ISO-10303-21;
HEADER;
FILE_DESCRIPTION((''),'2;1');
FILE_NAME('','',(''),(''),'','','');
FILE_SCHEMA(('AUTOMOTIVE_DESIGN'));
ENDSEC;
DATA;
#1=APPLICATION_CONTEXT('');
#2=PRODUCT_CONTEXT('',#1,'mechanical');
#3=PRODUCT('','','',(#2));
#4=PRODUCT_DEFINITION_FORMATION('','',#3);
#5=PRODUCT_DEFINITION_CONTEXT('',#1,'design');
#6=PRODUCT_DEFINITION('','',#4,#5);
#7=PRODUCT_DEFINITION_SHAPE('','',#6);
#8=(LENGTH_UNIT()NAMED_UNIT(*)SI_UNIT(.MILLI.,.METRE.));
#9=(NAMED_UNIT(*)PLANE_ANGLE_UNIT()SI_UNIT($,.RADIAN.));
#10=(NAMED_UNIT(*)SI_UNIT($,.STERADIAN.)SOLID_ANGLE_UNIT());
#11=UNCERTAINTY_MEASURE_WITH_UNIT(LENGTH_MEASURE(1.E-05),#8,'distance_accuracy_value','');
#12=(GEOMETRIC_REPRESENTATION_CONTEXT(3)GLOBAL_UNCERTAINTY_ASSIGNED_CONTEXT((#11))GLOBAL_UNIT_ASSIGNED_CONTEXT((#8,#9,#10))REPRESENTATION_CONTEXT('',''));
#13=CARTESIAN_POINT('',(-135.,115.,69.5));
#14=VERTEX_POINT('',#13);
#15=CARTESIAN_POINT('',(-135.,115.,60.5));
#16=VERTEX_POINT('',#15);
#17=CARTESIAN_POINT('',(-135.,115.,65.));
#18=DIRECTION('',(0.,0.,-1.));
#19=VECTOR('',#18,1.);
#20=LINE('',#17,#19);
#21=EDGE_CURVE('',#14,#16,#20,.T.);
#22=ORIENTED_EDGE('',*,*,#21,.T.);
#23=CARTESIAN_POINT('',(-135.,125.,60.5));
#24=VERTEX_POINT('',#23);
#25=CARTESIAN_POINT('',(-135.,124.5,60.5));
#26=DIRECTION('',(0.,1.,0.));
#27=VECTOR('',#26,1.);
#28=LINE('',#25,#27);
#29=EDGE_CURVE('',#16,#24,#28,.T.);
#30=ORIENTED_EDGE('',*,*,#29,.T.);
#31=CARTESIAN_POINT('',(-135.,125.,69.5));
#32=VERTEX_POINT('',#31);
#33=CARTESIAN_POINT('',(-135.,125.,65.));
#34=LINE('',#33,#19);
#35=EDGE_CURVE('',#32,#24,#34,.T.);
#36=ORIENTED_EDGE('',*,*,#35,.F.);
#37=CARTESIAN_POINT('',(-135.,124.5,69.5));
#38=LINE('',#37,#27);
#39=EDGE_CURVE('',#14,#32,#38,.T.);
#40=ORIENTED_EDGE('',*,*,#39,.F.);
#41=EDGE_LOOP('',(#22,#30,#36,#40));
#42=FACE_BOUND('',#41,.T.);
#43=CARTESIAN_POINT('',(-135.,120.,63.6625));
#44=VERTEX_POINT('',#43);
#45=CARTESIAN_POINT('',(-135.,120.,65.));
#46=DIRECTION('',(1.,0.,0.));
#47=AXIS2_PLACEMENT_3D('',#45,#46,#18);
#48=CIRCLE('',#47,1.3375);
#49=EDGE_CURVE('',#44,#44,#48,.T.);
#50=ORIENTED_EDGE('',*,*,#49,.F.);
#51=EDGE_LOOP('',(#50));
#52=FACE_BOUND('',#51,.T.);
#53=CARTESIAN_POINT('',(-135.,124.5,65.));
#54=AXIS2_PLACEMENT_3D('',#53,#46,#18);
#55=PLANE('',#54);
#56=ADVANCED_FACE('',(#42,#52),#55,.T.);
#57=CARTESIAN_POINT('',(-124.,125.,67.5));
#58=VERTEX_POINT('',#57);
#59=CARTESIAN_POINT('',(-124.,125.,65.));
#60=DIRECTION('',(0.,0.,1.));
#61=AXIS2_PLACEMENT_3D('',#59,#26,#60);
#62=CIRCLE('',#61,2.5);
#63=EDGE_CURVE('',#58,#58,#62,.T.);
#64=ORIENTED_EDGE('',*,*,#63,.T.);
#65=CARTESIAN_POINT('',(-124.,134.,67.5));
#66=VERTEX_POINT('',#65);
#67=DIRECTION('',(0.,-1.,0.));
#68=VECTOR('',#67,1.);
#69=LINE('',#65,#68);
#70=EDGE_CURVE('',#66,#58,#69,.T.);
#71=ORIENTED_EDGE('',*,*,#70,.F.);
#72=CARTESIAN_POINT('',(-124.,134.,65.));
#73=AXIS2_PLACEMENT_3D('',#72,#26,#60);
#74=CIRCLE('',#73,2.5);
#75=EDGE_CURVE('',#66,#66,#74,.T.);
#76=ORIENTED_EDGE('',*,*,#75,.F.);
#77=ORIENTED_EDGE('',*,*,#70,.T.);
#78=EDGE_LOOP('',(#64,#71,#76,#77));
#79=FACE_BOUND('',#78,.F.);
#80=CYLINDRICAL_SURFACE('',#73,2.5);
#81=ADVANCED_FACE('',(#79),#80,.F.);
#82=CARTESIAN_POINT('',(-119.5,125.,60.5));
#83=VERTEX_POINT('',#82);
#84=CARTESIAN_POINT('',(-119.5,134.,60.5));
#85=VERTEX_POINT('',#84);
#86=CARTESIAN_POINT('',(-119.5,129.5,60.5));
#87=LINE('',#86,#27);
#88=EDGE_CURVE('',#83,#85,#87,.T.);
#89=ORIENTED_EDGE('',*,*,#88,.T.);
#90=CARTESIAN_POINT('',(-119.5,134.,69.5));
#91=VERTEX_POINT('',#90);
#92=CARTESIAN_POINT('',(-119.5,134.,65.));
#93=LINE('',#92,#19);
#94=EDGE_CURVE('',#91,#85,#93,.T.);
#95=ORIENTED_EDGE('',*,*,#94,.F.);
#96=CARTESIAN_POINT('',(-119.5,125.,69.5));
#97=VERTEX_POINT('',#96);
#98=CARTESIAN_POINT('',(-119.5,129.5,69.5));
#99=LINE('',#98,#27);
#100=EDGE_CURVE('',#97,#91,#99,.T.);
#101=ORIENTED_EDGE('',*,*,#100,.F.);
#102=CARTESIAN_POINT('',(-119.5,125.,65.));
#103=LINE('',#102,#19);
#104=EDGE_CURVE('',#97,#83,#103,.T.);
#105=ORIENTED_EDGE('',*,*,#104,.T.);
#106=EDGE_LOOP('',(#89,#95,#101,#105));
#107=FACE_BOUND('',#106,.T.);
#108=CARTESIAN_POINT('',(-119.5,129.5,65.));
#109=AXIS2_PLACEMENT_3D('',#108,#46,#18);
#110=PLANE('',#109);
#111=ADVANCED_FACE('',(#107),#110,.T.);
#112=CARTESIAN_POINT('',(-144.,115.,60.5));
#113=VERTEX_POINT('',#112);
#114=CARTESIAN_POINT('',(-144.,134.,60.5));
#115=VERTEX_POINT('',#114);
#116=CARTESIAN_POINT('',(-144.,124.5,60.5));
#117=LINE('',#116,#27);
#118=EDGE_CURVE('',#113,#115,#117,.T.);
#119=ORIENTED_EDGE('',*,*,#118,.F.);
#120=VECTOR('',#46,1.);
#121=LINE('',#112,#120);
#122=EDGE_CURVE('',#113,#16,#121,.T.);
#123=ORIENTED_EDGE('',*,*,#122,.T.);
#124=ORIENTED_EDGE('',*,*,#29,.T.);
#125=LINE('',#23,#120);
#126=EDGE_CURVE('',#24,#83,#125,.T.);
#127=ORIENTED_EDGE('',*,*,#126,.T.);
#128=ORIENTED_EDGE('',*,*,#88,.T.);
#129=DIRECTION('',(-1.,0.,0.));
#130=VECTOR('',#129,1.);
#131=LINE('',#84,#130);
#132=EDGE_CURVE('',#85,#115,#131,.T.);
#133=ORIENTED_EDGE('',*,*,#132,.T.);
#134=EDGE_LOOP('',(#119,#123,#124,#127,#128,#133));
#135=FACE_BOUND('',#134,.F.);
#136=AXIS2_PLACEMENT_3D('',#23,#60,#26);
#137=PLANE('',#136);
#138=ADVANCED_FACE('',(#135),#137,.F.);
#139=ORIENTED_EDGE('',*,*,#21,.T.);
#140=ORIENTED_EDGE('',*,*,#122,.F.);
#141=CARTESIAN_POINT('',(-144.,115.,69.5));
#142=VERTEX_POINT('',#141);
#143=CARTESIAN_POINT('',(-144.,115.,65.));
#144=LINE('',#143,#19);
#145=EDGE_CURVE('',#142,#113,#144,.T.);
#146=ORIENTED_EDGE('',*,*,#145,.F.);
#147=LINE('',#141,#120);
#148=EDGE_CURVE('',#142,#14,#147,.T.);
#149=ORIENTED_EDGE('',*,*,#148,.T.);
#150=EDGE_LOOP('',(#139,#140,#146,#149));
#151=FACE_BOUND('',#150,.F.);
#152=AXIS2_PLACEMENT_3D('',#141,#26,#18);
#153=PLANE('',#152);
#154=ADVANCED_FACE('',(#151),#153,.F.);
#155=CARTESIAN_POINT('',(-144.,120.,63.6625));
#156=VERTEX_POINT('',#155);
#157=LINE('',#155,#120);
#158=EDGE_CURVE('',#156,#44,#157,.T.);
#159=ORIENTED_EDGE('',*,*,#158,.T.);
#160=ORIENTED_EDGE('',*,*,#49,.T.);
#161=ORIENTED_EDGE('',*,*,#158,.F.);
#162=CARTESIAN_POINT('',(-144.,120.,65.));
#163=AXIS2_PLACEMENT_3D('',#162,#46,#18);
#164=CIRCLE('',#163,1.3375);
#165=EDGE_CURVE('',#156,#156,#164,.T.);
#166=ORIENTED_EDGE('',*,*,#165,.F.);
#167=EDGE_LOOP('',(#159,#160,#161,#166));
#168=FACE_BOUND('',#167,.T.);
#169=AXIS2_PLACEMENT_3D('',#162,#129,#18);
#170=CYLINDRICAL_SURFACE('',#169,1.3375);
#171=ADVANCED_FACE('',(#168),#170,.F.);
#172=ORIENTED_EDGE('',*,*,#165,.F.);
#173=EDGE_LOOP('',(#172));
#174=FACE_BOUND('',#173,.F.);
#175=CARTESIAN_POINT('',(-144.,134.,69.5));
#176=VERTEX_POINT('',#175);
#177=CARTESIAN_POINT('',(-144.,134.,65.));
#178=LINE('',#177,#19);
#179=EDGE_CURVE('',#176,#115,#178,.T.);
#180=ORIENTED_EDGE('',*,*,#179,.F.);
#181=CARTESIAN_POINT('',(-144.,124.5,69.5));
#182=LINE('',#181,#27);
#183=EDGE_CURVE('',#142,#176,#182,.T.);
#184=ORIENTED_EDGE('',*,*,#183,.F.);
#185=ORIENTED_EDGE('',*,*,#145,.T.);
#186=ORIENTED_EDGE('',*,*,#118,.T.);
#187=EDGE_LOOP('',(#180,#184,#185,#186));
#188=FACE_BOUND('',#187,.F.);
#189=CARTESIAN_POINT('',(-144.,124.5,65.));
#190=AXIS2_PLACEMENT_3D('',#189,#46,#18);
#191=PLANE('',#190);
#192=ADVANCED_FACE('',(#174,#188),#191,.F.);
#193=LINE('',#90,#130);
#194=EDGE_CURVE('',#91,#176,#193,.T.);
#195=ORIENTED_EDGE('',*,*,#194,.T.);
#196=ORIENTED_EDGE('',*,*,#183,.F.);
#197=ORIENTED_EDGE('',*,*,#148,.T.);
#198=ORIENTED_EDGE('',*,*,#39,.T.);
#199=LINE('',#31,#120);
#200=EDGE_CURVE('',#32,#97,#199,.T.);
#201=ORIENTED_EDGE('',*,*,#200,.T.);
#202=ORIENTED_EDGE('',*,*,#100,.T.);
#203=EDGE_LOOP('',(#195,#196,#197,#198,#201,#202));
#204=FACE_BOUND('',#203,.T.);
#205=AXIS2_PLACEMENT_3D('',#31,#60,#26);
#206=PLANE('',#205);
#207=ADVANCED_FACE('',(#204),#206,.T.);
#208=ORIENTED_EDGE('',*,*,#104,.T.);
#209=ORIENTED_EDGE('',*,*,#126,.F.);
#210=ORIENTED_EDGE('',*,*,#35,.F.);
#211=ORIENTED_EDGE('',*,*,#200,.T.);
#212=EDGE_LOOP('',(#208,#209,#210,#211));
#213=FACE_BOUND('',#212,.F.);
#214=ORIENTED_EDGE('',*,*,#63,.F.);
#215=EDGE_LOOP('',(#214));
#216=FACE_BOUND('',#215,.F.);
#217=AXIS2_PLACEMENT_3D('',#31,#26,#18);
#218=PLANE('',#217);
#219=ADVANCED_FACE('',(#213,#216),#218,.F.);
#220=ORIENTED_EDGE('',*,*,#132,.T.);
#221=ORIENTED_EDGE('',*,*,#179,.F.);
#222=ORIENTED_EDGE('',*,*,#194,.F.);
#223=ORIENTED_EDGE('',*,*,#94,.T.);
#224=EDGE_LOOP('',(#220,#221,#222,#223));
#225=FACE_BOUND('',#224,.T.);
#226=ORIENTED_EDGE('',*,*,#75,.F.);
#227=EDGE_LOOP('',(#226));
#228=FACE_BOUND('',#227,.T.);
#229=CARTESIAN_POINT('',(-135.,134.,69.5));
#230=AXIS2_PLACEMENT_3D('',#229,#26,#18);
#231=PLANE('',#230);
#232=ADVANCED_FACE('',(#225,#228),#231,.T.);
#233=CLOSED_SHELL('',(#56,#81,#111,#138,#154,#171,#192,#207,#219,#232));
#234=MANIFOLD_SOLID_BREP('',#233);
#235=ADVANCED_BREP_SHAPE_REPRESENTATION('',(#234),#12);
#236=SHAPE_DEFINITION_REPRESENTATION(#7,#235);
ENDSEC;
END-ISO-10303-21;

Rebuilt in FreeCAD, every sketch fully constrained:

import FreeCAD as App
import Part
import Sketcher

doc = App.newDocument("Part")
body = doc.addObject("PartDesign::Body", "Body")

# Sketch on XY plane
sketch1 = body.newObject("Sketcher::SketchObject", "Sketch")
sketch1.AttachmentSupport = (doc.getObject("XY_Plane"), [""])
sketch1.MapMode = "FlatFace"
sketch1.addGeometry(Part.LineSegment(App.Vector(0, 19, 0), App.Vector(0, 0, 0)), False)
sketch1.addGeometry(Part.LineSegment(App.Vector(0, 0, 0), App.Vector(9, 0, 0)), False)
sketch1.addGeometry(Part.LineSegment(App.Vector(9, 0, 0), App.Vector(9, 19, 0)), False)
sketch1.addGeometry(Part.LineSegment(App.Vector(9, 19, 0), App.Vector(0, 19, 0)), False)
sketch1.addGeometry(Part.Circle(App.Vector(4.5, 5, 0), App.Vector(0, 0, 1), 1.3), False)
sketch1.addConstraint(Sketcher.Constraint("Coincident", 0, 2, 1, 1))
sketch1.addConstraint(Sketcher.Constraint("Coincident", 1, 2, 2, 1))
sketch1.addConstraint(Sketcher.Constraint("Coincident", 2, 2, 3, 1))
sketch1.addConstraint(Sketcher.Constraint("Coincident", 3, 2, 0, 1))
sketch1.addConstraint(Sketcher.Constraint("Vertical", 0))
sketch1.addConstraint(Sketcher.Constraint("Horizontal", 1))
sketch1.addConstraint(Sketcher.Constraint("Vertical", 2))
sketch1.addConstraint(Sketcher.Constraint("Horizontal", 3))
sketch1.addConstraint(Sketcher.Constraint("Coincident", 0, 2, -1, 1))
sketch1.addConstraint(Sketcher.Constraint("DistanceX", 1, 1, 1, 2, 9.0))
sketch1.addConstraint(Sketcher.Constraint("DistanceY", 0, 2, 0, 1, 19.0))
sketch1.addConstraint(Sketcher.Constraint("Diameter", 4, 2.675))
sketch1.addConstraint(Sketcher.Constraint("DistanceY", -1, 1, 4, 3, 5.0))
sketch1.addConstraint(Sketcher.Constraint("DistanceX", -1, 1, 4, 3, 4.5))
pad1 = body.newObject("PartDesign::Pad", "Pad")
pad1.Profile = sketch1
pad1.Length = 9

# Sketch on XY plane
sketch2 = body.newObject("Sketcher::SketchObject", "Sketch001")
sketch2.AttachmentSupport = (doc.getObject("XY_Plane"), [""])
sketch2.MapMode = "FlatFace"
sketch2.AttachmentOffset = App.Placement(App.Vector(0, 0, 9), App.Rotation())
sketch2.addGeometry(Part.LineSegment(App.Vector(0, 19, 0), App.Vector(0, 10, 0)), False)
sketch2.addGeometry(Part.LineSegment(App.Vector(0, 10, 0), App.Vector(9, 10, 0)), False)
sketch2.addGeometry(Part.LineSegment(App.Vector(9, 10, 0), App.Vector(9, 19, 0)), False)
sketch2.addGeometry(Part.LineSegment(App.Vector(9, 19, 0), App.Vector(0, 19, 0)), False)
sketch2.addConstraint(Sketcher.Constraint("Coincident", 0, 2, 1, 1))
sketch2.addConstraint(Sketcher.Constraint("Coincident", 1, 2, 2, 1))
sketch2.addConstraint(Sketcher.Constraint("Coincident", 2, 2, 3, 1))
sketch2.addConstraint(Sketcher.Constraint("Coincident", 3, 2, 0, 1))
sketch2.addConstraint(Sketcher.Constraint("Vertical", 0))
sketch2.addConstraint(Sketcher.Constraint("Horizontal", 1))
sketch2.addConstraint(Sketcher.Constraint("Vertical", 2))
sketch2.addConstraint(Sketcher.Constraint("Horizontal", 3))
sketch2.addConstraint(Sketcher.Constraint("PointOnObject", 0, 2, -2))
sketch2.addConstraint(Sketcher.Constraint("Equal", 3, 0))
sketch2.addConstraint(Sketcher.Constraint("DistanceX", 1, 1, 1, 2, 9.0))
sketch2.addConstraint(Sketcher.Constraint("DistanceY", -1, 1, 0, 2, 10.0))
pad2 = body.newObject("PartDesign::Pad", "Pad001")
pad2.Profile = sketch2
pad2.Length = 15.5

# Sketch on XZ plane
sketch3 = body.newObject("Sketcher::SketchObject", "Sketch002")
sketch3.AttachmentSupport = (doc.getObject("XZ_Plane"), [""])
sketch3.MapMode = "FlatFace"
sketch3.AttachmentOffset = App.Placement(App.Vector(0, 0, -19), App.Rotation())
sketch3.addGeometry(Part.Circle(App.Vector(4.5, 20, 0), App.Vector(0, 0, 1), 2.5), False)
sketch3.addConstraint(Sketcher.Constraint("Diameter", 0, 5.0))
sketch3.addConstraint(Sketcher.Constraint("DistanceY", -1, 1, 0, 3, 20.0))
sketch3.addConstraint(Sketcher.Constraint("DistanceX", -1, 1, 0, 3, 4.5))
pocket1 = body.newObject("PartDesign::Pocket", "Pocket")
pocket1.Profile = sketch3
pocket1.Type = "ThroughAll"
pocket1.Reversed = True
body2 = doc.addObject("PartDesign::Body", "Body001")
doc.recompute()

body.Placement = App.Placement(App.Vector(-144, 115, 69.5), App.Rotation(App.Vector(0, 1, 0), 90))
boolean = body2.newObject("PartDesign::Boolean", "Boolean")
boolean.Type = "Fuse"
boolean.addObjects([body])

doc.recompute()
